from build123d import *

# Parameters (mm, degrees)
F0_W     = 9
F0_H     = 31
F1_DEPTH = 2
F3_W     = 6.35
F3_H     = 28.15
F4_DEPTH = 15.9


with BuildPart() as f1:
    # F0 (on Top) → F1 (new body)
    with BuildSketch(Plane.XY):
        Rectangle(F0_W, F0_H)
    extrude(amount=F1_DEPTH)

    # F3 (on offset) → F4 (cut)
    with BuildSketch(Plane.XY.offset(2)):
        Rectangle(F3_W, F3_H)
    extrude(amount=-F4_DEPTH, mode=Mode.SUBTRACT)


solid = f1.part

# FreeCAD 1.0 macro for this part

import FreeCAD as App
import Part
import Sketcher

V = App.Vector


def add_polygon(sketch, points):
    """Adds a closed chain of lines whose ends are joined by coincident constraints."""
    first, n = sketch.GeometryCount, len(points)
    for a, b in zip(points, points[1:] + points[:1]):
        sketch.addGeometry(Part.LineSegment(App.Vector(*a, 0), App.Vector(*b, 0)), False)
    for i in range(n):
        sketch.addConstraint(Sketcher.Constraint("Coincident", first + i, 2, first + (i + 1) % n, 1))

doc = App.newDocument("Part")
body = doc.addObject("PartDesign::Body", "Body")

sketch1 = doc.addObject("Sketcher::SketchObject", "Sketch")
body.addObject(sketch1)
sketch1.AttachmentSupport = (doc.XY_Plane, [""])
sketch1.MapMode = "FlatFace"
add_polygon(sketch1, [(-4, 16), (-4, -16), (4, -16), (4, 16)])
sketch1.addConstraint(Sketcher.Constraint("Vertical", 0))
sketch1.addConstraint(Sketcher.Constraint("Horizontal", 1))
sketch1.addConstraint(Sketcher.Constraint("Vertical", 2))
sketch1.addConstraint(Sketcher.Constraint("Horizontal", 3))
sketch1.addConstraint(Sketcher.Constraint("Symmetric", 0, 2, 2, 2, -1, 1))
sketch1.addConstraint(Sketcher.Constraint("DistanceX", 1, 1, 1, 2, 9.0))
sketch1.addConstraint(Sketcher.Constraint("DistanceY", 0, 2, 0, 1, 31.0))
pad1 = doc.addObject("PartDesign::Pad", "Pad")
body.addObject(pad1)
pad1.Profile = sketch1
pad1.Length = 2

sketch2 = doc.addObject("Sketcher::SketchObject", "Sketch001")
body.addObject(sketch2)
sketch2.AttachmentSupport = (doc.XY_Plane, [""])
sketch2.MapMode = "FlatFace"
sketch2.AttachmentOffset = App.Placement(V(0, 0, 2), App.Rotation())
add_polygon(sketch2, [(-3, 14), (-3, -14), (3, -14), (3, 14)])
sketch2.addConstraint(Sketcher.Constraint("Vertical", 0))
sketch2.addConstraint(Sketcher.Constraint("Horizontal", 1))
sketch2.addConstraint(Sketcher.Constraint("Vertical", 2))
sketch2.addConstraint(Sketcher.Constraint("Horizontal", 3))
sketch2.addConstraint(Sketcher.Constraint("Symmetric", 0, 2, 2, 2, -1, 1))
sketch2.addConstraint(Sketcher.Constraint("DistanceX", 1, 1, 1, 2, 6.35))
sketch2.addConstraint(Sketcher.Constraint("DistanceY", 0, 2, 0, 1, 28.15))
pocket1 = doc.addObject("PartDesign::Pocket", "Pocket")
body.addObject(pocket1)
pocket1.Profile = sketch2
pocket1.Length = 15.9

doc.recompute()
